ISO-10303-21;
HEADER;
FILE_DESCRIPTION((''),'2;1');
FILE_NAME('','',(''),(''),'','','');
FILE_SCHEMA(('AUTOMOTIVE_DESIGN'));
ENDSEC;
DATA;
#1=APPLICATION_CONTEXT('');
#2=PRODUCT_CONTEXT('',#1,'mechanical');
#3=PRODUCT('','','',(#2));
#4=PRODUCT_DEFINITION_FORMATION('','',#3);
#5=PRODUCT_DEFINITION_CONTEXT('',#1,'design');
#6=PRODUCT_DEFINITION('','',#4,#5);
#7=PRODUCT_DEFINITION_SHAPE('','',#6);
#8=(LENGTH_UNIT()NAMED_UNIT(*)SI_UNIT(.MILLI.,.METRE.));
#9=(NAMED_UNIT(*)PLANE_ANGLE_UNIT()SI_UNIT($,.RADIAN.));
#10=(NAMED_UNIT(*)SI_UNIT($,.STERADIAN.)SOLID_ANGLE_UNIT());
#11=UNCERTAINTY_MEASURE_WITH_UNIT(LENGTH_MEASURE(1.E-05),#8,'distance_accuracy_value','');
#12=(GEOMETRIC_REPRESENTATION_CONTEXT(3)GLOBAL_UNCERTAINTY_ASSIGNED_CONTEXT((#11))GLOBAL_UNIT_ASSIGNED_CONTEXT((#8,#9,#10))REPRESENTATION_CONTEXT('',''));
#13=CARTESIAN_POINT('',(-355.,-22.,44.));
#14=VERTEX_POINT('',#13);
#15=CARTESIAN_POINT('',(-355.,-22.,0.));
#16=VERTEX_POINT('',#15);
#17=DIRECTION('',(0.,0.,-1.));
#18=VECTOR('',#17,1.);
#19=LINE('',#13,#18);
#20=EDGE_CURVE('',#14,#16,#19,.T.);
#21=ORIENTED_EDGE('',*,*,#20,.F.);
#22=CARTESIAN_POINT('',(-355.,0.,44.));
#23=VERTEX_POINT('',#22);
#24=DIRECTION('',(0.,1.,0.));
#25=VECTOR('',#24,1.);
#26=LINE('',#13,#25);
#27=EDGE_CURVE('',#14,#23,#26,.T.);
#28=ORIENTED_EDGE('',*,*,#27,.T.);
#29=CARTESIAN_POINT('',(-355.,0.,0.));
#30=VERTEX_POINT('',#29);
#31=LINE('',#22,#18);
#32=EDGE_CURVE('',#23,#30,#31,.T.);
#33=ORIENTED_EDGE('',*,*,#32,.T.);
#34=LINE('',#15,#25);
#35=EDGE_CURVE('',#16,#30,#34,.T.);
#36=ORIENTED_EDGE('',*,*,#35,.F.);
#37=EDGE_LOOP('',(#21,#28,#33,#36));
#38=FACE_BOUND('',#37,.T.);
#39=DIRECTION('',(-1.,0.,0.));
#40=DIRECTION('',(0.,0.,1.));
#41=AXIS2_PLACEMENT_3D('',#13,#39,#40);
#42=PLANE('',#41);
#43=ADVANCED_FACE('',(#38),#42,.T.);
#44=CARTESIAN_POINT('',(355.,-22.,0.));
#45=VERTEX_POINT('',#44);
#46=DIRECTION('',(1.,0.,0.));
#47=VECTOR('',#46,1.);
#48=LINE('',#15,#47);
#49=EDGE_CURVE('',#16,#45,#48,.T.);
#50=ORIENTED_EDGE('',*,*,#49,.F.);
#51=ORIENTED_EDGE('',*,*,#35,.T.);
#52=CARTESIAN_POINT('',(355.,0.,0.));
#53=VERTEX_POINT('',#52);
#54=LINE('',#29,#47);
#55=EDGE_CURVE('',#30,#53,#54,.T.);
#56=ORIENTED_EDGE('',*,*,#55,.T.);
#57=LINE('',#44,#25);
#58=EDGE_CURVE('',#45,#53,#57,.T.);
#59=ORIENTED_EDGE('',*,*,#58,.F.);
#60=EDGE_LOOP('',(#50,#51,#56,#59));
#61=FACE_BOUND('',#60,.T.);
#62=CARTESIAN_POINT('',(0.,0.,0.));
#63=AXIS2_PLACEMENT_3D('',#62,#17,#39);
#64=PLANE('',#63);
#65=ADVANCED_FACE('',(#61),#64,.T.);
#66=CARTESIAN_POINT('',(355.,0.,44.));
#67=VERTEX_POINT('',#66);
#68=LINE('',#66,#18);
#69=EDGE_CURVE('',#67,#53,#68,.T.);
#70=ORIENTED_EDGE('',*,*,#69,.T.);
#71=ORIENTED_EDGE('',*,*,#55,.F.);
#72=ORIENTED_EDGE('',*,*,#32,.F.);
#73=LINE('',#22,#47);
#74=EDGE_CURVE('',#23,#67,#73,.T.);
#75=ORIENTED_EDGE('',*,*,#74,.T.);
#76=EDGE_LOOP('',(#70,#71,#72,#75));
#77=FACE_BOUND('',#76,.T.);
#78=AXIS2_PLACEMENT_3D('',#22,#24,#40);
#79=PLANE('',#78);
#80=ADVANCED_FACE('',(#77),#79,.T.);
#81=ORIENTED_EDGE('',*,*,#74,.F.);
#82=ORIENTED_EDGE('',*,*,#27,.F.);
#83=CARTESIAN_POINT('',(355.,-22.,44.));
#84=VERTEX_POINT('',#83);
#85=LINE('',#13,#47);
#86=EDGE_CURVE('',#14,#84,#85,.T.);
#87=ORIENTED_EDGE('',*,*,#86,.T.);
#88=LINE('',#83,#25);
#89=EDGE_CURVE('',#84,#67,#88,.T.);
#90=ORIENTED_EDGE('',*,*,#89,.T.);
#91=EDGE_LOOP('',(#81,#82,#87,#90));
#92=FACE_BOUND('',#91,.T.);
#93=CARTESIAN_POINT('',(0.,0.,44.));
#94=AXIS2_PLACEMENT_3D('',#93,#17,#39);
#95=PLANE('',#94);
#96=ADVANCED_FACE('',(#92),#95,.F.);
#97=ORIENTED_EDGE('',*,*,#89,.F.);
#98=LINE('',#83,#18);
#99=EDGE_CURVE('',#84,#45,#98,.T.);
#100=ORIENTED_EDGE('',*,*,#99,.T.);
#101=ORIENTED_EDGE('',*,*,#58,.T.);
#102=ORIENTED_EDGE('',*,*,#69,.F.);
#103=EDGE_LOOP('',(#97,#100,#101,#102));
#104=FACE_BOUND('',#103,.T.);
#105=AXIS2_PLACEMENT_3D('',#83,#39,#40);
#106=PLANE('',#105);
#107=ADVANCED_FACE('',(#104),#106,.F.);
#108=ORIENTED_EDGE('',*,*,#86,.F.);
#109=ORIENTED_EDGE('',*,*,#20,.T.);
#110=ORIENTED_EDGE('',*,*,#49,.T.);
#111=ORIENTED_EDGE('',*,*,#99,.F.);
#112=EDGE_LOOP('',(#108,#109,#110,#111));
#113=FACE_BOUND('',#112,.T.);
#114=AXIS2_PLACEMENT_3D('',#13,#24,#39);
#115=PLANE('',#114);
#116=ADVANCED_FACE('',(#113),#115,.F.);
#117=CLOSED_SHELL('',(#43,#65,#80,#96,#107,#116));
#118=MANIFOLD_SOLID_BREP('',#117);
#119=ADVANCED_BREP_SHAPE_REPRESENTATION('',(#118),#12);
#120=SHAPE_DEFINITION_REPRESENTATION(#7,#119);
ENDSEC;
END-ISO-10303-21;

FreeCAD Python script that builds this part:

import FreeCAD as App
import Part
import Sketcher
from FreeCAD import Vector
Q = App.Units.Quantity


def add_polygon(sketch, points):
    """Adds a closed chain of lines whose ends are joined by coincident constraints."""
    first, n = sketch.GeometryCount, len(points)
    for a, b in zip(points, points[1:] + points[:1]):
        sketch.addGeometry(Part.LineSegment(App.Vector(*a, 0), App.Vector(*b, 0)), False)
    for i in range(n):
        sketch.addConstraint(Sketcher.Constraint("Coincident", first + i, 2, first + (i + 1) % n, 1))

doc = App.newDocument("Part")
body = doc.addObject("PartDesign::Body", "Body")

sketch1 = doc.addObject("Sketcher::SketchObject", "Sketch")
body.addObject(sketch1)
sketch1.AttachmentSupport = (doc.XY_Plane, [""])
sketch1.MapMode = "FlatFace"
add_polygon(sketch1, [(-355, 0), (-355, -22), (355, -22), (355, 0)])
sketch1.addConstraint(Sketcher.Constraint("Vertical", 0))
sketch1.addConstraint(Sketcher.Constraint("Horizontal", 1))
sketch1.addConstraint(Sketcher.Constraint("Vertical", 2))
sketch1.addConstraint(Sketcher.Constraint("Horizontal", 3))
sketch1.addConstraint(Sketcher.Constraint("Symmetric", 2, 2, 3, 2, -1, 1))
sketch1.addConstraint(Sketcher.Constraint("DistanceX", 1, 1, 1, 2, Q("710 mm")))
sketch1.addConstraint(Sketcher.Constraint("DistanceY", 0, 2, 0, 1, Q("22 mm")))
pad1 = doc.addObject("PartDesign::Pad", "Pad")
body.addObject(pad1)
pad1.Profile = sketch1
pad1.Length = 44

doc.recompute()
